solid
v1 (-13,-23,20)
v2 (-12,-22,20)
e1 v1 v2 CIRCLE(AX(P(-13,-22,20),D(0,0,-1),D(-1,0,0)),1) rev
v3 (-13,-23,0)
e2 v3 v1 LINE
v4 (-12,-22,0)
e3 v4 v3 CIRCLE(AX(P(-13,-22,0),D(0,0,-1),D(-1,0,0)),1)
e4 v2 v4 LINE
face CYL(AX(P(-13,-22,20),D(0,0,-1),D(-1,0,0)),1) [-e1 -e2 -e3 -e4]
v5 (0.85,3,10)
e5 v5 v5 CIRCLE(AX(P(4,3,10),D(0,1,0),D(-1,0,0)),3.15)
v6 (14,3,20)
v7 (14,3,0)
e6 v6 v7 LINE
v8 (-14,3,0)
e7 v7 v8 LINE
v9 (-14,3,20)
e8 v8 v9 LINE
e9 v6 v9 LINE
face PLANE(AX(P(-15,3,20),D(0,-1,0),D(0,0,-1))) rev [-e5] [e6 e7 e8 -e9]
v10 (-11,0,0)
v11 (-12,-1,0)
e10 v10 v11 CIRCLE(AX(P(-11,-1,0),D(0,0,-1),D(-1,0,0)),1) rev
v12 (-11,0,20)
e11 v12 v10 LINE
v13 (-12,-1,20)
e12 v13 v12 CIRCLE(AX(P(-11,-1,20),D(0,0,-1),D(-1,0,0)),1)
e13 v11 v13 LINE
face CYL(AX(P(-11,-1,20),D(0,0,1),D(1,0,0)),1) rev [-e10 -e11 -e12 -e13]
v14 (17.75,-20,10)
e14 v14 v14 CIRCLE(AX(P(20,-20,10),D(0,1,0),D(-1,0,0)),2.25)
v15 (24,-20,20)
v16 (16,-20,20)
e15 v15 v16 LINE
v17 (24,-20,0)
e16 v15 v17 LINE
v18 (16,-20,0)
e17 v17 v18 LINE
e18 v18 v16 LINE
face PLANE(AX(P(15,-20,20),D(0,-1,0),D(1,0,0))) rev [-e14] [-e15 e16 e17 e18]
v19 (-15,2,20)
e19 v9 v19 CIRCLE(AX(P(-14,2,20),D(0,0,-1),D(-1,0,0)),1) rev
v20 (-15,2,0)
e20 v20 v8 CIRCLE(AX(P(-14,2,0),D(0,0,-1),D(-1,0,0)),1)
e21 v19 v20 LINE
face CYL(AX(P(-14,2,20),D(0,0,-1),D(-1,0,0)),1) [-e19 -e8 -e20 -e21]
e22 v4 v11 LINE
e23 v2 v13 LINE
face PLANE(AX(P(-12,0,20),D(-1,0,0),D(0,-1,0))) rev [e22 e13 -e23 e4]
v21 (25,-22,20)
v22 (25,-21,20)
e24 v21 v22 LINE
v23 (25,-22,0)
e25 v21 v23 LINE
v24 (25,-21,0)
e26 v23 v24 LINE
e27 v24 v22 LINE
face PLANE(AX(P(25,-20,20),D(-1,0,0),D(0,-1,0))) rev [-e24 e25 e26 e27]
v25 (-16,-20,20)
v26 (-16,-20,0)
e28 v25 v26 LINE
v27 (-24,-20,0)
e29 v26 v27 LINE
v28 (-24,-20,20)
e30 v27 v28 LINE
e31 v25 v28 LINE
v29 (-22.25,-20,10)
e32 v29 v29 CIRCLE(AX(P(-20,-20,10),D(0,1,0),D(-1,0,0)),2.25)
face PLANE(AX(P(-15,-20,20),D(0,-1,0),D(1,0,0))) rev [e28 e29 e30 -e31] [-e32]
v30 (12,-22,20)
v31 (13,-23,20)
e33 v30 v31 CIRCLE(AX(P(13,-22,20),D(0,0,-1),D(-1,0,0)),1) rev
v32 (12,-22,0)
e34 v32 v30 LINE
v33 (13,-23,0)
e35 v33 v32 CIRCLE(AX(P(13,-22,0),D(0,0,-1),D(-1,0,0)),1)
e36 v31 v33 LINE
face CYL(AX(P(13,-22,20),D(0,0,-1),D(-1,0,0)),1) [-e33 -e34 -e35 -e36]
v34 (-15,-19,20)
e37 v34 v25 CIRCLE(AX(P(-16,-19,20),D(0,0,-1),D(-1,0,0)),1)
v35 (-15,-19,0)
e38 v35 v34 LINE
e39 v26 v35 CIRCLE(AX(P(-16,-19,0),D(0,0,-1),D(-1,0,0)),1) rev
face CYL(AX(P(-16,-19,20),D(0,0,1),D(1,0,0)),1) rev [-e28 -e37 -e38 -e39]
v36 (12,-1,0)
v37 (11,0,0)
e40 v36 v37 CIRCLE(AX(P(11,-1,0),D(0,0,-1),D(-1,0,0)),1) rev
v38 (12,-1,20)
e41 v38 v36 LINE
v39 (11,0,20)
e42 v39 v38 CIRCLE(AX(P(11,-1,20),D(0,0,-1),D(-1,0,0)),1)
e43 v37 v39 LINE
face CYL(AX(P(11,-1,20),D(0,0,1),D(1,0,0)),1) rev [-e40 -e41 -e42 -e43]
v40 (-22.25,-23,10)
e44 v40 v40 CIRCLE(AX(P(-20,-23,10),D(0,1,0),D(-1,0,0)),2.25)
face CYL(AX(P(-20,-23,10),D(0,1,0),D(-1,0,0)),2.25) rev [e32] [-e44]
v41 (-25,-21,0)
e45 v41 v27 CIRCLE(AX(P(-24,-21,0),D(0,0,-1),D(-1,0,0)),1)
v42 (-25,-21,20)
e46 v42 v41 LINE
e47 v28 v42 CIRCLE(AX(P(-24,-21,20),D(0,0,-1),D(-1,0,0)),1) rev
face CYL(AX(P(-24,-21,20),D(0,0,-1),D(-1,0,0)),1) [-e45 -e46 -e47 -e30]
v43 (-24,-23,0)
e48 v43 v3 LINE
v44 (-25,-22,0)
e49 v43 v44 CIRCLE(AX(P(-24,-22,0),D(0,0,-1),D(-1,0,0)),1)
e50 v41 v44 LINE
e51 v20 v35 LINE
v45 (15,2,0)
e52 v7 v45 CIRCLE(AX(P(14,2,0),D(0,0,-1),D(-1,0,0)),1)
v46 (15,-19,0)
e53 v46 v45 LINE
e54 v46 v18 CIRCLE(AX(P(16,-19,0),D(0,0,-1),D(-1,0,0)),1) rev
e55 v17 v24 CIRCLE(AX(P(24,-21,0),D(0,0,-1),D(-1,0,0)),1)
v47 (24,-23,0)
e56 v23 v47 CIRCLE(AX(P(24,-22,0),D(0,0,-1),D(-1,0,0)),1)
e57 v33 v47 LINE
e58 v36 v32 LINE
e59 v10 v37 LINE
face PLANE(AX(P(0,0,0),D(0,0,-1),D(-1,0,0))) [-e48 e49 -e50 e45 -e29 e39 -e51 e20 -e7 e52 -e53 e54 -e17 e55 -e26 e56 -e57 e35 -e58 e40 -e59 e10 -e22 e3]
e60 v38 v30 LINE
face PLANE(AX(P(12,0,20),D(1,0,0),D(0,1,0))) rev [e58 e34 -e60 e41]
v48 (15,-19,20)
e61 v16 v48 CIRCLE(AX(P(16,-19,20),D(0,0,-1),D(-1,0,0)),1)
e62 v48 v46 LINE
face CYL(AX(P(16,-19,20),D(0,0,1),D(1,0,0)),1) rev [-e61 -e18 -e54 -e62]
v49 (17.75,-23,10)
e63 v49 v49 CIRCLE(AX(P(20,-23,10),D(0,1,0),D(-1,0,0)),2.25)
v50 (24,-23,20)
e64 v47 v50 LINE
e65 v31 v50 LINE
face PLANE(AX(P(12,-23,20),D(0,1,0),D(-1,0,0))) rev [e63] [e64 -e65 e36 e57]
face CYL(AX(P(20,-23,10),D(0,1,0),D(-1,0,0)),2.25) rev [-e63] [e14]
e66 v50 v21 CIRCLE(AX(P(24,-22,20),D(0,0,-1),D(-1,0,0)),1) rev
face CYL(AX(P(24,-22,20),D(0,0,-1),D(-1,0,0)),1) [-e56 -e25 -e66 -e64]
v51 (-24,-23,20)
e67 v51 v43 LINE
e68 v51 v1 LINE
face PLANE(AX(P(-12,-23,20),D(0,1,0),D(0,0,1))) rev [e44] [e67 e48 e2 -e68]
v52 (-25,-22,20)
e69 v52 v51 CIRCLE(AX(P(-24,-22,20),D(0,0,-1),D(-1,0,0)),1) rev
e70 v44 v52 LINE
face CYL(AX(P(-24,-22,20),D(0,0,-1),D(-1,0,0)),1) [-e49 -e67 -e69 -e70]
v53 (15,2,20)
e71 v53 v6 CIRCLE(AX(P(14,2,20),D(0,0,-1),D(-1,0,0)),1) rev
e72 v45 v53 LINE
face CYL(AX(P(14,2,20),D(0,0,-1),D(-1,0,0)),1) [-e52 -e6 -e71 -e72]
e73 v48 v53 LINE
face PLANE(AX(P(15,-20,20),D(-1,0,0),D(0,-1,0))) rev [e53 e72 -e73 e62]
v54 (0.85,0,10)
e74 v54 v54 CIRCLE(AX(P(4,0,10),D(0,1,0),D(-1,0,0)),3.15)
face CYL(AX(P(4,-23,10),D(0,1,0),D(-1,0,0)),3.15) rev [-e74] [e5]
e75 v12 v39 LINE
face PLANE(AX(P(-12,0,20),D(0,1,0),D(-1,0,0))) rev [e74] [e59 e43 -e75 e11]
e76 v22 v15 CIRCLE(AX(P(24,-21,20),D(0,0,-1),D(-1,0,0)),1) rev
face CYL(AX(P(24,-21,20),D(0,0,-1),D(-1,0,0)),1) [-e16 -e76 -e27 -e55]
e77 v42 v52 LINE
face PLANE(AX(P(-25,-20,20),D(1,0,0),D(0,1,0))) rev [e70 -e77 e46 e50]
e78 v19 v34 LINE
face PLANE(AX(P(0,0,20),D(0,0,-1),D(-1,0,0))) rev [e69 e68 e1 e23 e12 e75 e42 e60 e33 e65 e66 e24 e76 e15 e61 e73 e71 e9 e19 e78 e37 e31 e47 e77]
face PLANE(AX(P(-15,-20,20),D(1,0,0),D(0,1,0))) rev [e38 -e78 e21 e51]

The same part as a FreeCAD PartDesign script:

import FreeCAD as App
import Part
import Sketcher
from FreeCAD import Vector
Q = App.Units.Quantity


def edges_at(feature, points):
    """Names of the edges that pass closest to the given points."""
    edges = feature.Shape.Edges
    near = lambda p: min(range(len(edges)), key=lambda i: edges[i].distToShape(Part.Vertex(*p))[0])
    return sorted({f"Edge{near(p) + 1}" for p in points})

doc = App.newDocument("Part")
body = doc.addObject("PartDesign::Body", "Body")

sketch1 = doc.addObject("Sketcher::SketchObject", "Sketch")
body.addObject(sketch1)
sketch1.AttachmentSupport = (doc.XY_Plane, [""])
sketch1.MapMode = "FlatFace"
sketch1.addGeometry(Part.LineSegment(Vector(-12, 0, 0), Vector(12, 0, 0)), False)
sketch1.addGeometry(Part.LineSegment(Vector(12, 0, 0), Vector(12, -23, 0)), False)
sketch1.addGeometry(Part.LineSegment(Vector(12, -23, 0), Vector(25, -23, 0)), False)
sketch1.addGeometry(Part.LineSegment(Vector(25, -23, 0), Vector(25, -20, 0)), False)
sketch1.addGeometry(Part.LineSegment(Vector(25, -20, 0), Vector(15, -20, 0)), False)
sketch1.addGeometry(Part.LineSegment(Vector(15, -20, 0), Vector(15, 3, 0)), False)
sketch1.addGeometry(Part.LineSegment(Vector(15, 3, 0), Vector(-15, 3, 0)), False)
sketch1.addGeometry(Part.LineSegment(Vector(-15, 3, 0), Vector(-15, -20, 0)), False)
sketch1.addGeometry(Part.LineSegment(Vector(-15, -20, 0), Vector(-25, -20, 0)), False)
sketch1.addGeometry(Part.LineSegment(Vector(-25, -20, 0), Vector(-25, -23, 0)), False)
sketch1.addGeometry(Part.LineSegment(Vector(-25, -23, 0), Vector(-12, -23, 0)), False)
sketch1.addGeometry(Part.LineSegment(Vector(-12, -23, 0), Vector(-12, 0, 0)), False)
sketch1.addConstraint(Sketcher.Constraint("Coincident", 0, 2, 1, 1))
sketch1.addConstraint(Sketcher.Constraint("Coincident", 1, 2, 2, 1))
sketch1.addConstraint(Sketcher.Constraint("Coincident", 2, 2, 3, 1))
sketch1.addConstraint(Sketcher.Constraint("Coincident", 3, 2, 4, 1))
sketch1.addConstraint(Sketcher.Constraint("Coincident", 4, 2, 5, 1))
sketch1.addConstraint(Sketcher.Constraint("Coincident", 5, 2, 6, 1))
sketch1.addConstraint(Sketcher.Constraint("Coincident", 6, 2, 7, 1))
sketch1.addConstraint(Sketcher.Constraint("Coincident", 7, 2, 8, 1))
sketch1.addConstraint(Sketcher.Constraint("Coincident", 8, 2, 9, 1))
sketch1.addConstraint(Sketcher.Constraint("Coincident", 9, 2, 10, 1))
sketch1.addConstraint(Sketcher.Constraint("Coincident", 10, 2, 11, 1))
sketch1.addConstraint(Sketcher.Constraint("Coincident", 11, 2, 0, 1))
sketch1.addConstraint(Sketcher.Constraint("Horizontal", 0))
sketch1.addConstraint(Sketcher.Constraint("Vertical", 1))
sketch1.addConstraint(Sketcher.Constraint("Horizontal", 2))
sketch1.addConstraint(Sketcher.Constraint("Vertical", 3))
sketch1.addConstraint(Sketcher.Constraint("Horizontal", 4))
sketch1.addConstraint(Sketcher.Constraint("Vertical", 5))
sketch1.addConstraint(Sketcher.Constraint("Horizontal", 6))
sketch1.addConstraint(Sketcher.Constraint("Vertical", 7))
sketch1.addConstraint(Sketcher.Constraint("Horizontal", 8))
sketch1.addConstraint(Sketcher.Constraint("Vertical", 9))
sketch1.addConstraint(Sketcher.Constraint("Horizontal", 10))
sketch1.addConstraint(Sketcher.Constraint("Vertical", 11))
sketch1.addConstraint(Sketcher.Constraint("Symmetric", 0, 2, 11, 2, -1, 1))
sketch1.addConstraint(Sketcher.Constraint("Symmetric", 4, 2, 7, 2, -2))
sketch1.addConstraint(Sketcher.Constraint("Symmetric", 2, 2, 9, 2, -2))
sketch1.addConstraint(Sketcher.Constraint("Equal", 1, 5))
sketch1.addConstraint(Sketcher.Constraint("DistanceX", 0, 1, 0, 2, Q("24 mm")))
sketch1.addConstraint(Sketcher.Constraint("DistanceX", 2, 1, 2, 2, Q("13 mm")))
sketch1.addConstraint(Sketcher.Constraint("DistanceX", 4, 2, 4, 1, Q("10 mm")))
sketch1.addConstraint(Sketcher.Constraint("DistanceY", 1, 2, 1, 1, Q("23 mm")))
sketch1.addConstraint(Sketcher.Constraint("DistanceY", 3, 1, 3, 2, Q("3 mm")))
pad1 = doc.addObject("PartDesign::Pad", "Pad")
body.addObject(pad1)
pad1.Profile = sketch1
pad1.Length = 20

sketch2 = doc.addObject("Sketcher::SketchObject", "Sketch001")
body.addObject(sketch2)
sketch2.AttachmentSupport = (doc.XZ_Plane, [""])
sketch2.MapMode = "FlatFace"
sketch2.AttachmentOffset = App.Placement(Vector(0, 0, -3), App.Rotation())
sketch2.addGeometry(Part.Circle(Vector(4, 10, 0), Vector(0, 0, 1), 3.15), False)
sketch2.addConstraint(Sketcher.Constraint("Diameter", 0, Q("6.3 mm")))
sketch2.addConstraint(Sketcher.Constraint("DistanceX", -1, 1, 0, 3, Q("4 mm")))
sketch2.addConstraint(Sketcher.Constraint("DistanceY", -1, 1, 0, 3, Q("10 mm")))
pocket1 = doc.addObject("PartDesign::Pocket", "Pocket")
body.addObject(pocket1)
pocket1.Profile = sketch2
pocket1.Type = "ThroughAll"
pocket1.Reversed = True

sketch3 = doc.addObject("Sketcher::SketchObject", "Sketch002")
body.addObject(sketch3)
sketch3.AttachmentSupport = (doc.XZ_Plane, [""])
sketch3.MapMode = "FlatFace"
sketch3.AttachmentOffset = App.Placement(Vector(0, 0, 20), App.Rotation())
sketch3.addGeometry(Part.Circle(Vector(-20, 10, 0), Vector(0, 0, 1), 2.25), False)
sketch3.addGeometry(Part.Circle(Vector(20, 10, 0), Vector(0, 0, 1), 2.25), False)
sketch3.addConstraint(Sketcher.Constraint("Equal", 0, 1))
sketch3.addConstraint(Sketcher.Constraint("Symmetric", 0, 3, 1, 3, -2))
sketch3.addConstraint(Sketcher.Constraint("Diameter", 0, Q("4.5 mm")))
sketch3.addConstraint(Sketcher.Constraint("DistanceX", 0, 3, -1, 1, Q("20 mm")))
sketch3.addConstraint(Sketcher.Constraint("DistanceY", -1, 1, 0, 3, Q("10 mm")))
pocket2 = doc.addObject("PartDesign::Pocket", "Pocket001")
body.addObject(pocket2)
pocket2.Profile = sketch3
pocket2.Type = "ThroughAll"
pocket2.Reversed = True
doc.recompute()

fillet = doc.addObject("PartDesign::Fillet", "Fillet")
body.addObject(fillet)
fillet.Base = (pocket2, edges_at(pocket2, [
    (15, -20, 10),
    (25, -20, 10),
    (25, -23, 10),
    (12, -23, 10),
    (12, 0, 10),
    (-12, 0, 10),
    (-12, -23, 10),
    (-25, -23, 10),
    (-25, -20, 10),
    (-15, -20, 10),
    (-15, 3, 10),
    (15, 3, 10),
]))
fillet.Radius = 1

doc.recompute()
